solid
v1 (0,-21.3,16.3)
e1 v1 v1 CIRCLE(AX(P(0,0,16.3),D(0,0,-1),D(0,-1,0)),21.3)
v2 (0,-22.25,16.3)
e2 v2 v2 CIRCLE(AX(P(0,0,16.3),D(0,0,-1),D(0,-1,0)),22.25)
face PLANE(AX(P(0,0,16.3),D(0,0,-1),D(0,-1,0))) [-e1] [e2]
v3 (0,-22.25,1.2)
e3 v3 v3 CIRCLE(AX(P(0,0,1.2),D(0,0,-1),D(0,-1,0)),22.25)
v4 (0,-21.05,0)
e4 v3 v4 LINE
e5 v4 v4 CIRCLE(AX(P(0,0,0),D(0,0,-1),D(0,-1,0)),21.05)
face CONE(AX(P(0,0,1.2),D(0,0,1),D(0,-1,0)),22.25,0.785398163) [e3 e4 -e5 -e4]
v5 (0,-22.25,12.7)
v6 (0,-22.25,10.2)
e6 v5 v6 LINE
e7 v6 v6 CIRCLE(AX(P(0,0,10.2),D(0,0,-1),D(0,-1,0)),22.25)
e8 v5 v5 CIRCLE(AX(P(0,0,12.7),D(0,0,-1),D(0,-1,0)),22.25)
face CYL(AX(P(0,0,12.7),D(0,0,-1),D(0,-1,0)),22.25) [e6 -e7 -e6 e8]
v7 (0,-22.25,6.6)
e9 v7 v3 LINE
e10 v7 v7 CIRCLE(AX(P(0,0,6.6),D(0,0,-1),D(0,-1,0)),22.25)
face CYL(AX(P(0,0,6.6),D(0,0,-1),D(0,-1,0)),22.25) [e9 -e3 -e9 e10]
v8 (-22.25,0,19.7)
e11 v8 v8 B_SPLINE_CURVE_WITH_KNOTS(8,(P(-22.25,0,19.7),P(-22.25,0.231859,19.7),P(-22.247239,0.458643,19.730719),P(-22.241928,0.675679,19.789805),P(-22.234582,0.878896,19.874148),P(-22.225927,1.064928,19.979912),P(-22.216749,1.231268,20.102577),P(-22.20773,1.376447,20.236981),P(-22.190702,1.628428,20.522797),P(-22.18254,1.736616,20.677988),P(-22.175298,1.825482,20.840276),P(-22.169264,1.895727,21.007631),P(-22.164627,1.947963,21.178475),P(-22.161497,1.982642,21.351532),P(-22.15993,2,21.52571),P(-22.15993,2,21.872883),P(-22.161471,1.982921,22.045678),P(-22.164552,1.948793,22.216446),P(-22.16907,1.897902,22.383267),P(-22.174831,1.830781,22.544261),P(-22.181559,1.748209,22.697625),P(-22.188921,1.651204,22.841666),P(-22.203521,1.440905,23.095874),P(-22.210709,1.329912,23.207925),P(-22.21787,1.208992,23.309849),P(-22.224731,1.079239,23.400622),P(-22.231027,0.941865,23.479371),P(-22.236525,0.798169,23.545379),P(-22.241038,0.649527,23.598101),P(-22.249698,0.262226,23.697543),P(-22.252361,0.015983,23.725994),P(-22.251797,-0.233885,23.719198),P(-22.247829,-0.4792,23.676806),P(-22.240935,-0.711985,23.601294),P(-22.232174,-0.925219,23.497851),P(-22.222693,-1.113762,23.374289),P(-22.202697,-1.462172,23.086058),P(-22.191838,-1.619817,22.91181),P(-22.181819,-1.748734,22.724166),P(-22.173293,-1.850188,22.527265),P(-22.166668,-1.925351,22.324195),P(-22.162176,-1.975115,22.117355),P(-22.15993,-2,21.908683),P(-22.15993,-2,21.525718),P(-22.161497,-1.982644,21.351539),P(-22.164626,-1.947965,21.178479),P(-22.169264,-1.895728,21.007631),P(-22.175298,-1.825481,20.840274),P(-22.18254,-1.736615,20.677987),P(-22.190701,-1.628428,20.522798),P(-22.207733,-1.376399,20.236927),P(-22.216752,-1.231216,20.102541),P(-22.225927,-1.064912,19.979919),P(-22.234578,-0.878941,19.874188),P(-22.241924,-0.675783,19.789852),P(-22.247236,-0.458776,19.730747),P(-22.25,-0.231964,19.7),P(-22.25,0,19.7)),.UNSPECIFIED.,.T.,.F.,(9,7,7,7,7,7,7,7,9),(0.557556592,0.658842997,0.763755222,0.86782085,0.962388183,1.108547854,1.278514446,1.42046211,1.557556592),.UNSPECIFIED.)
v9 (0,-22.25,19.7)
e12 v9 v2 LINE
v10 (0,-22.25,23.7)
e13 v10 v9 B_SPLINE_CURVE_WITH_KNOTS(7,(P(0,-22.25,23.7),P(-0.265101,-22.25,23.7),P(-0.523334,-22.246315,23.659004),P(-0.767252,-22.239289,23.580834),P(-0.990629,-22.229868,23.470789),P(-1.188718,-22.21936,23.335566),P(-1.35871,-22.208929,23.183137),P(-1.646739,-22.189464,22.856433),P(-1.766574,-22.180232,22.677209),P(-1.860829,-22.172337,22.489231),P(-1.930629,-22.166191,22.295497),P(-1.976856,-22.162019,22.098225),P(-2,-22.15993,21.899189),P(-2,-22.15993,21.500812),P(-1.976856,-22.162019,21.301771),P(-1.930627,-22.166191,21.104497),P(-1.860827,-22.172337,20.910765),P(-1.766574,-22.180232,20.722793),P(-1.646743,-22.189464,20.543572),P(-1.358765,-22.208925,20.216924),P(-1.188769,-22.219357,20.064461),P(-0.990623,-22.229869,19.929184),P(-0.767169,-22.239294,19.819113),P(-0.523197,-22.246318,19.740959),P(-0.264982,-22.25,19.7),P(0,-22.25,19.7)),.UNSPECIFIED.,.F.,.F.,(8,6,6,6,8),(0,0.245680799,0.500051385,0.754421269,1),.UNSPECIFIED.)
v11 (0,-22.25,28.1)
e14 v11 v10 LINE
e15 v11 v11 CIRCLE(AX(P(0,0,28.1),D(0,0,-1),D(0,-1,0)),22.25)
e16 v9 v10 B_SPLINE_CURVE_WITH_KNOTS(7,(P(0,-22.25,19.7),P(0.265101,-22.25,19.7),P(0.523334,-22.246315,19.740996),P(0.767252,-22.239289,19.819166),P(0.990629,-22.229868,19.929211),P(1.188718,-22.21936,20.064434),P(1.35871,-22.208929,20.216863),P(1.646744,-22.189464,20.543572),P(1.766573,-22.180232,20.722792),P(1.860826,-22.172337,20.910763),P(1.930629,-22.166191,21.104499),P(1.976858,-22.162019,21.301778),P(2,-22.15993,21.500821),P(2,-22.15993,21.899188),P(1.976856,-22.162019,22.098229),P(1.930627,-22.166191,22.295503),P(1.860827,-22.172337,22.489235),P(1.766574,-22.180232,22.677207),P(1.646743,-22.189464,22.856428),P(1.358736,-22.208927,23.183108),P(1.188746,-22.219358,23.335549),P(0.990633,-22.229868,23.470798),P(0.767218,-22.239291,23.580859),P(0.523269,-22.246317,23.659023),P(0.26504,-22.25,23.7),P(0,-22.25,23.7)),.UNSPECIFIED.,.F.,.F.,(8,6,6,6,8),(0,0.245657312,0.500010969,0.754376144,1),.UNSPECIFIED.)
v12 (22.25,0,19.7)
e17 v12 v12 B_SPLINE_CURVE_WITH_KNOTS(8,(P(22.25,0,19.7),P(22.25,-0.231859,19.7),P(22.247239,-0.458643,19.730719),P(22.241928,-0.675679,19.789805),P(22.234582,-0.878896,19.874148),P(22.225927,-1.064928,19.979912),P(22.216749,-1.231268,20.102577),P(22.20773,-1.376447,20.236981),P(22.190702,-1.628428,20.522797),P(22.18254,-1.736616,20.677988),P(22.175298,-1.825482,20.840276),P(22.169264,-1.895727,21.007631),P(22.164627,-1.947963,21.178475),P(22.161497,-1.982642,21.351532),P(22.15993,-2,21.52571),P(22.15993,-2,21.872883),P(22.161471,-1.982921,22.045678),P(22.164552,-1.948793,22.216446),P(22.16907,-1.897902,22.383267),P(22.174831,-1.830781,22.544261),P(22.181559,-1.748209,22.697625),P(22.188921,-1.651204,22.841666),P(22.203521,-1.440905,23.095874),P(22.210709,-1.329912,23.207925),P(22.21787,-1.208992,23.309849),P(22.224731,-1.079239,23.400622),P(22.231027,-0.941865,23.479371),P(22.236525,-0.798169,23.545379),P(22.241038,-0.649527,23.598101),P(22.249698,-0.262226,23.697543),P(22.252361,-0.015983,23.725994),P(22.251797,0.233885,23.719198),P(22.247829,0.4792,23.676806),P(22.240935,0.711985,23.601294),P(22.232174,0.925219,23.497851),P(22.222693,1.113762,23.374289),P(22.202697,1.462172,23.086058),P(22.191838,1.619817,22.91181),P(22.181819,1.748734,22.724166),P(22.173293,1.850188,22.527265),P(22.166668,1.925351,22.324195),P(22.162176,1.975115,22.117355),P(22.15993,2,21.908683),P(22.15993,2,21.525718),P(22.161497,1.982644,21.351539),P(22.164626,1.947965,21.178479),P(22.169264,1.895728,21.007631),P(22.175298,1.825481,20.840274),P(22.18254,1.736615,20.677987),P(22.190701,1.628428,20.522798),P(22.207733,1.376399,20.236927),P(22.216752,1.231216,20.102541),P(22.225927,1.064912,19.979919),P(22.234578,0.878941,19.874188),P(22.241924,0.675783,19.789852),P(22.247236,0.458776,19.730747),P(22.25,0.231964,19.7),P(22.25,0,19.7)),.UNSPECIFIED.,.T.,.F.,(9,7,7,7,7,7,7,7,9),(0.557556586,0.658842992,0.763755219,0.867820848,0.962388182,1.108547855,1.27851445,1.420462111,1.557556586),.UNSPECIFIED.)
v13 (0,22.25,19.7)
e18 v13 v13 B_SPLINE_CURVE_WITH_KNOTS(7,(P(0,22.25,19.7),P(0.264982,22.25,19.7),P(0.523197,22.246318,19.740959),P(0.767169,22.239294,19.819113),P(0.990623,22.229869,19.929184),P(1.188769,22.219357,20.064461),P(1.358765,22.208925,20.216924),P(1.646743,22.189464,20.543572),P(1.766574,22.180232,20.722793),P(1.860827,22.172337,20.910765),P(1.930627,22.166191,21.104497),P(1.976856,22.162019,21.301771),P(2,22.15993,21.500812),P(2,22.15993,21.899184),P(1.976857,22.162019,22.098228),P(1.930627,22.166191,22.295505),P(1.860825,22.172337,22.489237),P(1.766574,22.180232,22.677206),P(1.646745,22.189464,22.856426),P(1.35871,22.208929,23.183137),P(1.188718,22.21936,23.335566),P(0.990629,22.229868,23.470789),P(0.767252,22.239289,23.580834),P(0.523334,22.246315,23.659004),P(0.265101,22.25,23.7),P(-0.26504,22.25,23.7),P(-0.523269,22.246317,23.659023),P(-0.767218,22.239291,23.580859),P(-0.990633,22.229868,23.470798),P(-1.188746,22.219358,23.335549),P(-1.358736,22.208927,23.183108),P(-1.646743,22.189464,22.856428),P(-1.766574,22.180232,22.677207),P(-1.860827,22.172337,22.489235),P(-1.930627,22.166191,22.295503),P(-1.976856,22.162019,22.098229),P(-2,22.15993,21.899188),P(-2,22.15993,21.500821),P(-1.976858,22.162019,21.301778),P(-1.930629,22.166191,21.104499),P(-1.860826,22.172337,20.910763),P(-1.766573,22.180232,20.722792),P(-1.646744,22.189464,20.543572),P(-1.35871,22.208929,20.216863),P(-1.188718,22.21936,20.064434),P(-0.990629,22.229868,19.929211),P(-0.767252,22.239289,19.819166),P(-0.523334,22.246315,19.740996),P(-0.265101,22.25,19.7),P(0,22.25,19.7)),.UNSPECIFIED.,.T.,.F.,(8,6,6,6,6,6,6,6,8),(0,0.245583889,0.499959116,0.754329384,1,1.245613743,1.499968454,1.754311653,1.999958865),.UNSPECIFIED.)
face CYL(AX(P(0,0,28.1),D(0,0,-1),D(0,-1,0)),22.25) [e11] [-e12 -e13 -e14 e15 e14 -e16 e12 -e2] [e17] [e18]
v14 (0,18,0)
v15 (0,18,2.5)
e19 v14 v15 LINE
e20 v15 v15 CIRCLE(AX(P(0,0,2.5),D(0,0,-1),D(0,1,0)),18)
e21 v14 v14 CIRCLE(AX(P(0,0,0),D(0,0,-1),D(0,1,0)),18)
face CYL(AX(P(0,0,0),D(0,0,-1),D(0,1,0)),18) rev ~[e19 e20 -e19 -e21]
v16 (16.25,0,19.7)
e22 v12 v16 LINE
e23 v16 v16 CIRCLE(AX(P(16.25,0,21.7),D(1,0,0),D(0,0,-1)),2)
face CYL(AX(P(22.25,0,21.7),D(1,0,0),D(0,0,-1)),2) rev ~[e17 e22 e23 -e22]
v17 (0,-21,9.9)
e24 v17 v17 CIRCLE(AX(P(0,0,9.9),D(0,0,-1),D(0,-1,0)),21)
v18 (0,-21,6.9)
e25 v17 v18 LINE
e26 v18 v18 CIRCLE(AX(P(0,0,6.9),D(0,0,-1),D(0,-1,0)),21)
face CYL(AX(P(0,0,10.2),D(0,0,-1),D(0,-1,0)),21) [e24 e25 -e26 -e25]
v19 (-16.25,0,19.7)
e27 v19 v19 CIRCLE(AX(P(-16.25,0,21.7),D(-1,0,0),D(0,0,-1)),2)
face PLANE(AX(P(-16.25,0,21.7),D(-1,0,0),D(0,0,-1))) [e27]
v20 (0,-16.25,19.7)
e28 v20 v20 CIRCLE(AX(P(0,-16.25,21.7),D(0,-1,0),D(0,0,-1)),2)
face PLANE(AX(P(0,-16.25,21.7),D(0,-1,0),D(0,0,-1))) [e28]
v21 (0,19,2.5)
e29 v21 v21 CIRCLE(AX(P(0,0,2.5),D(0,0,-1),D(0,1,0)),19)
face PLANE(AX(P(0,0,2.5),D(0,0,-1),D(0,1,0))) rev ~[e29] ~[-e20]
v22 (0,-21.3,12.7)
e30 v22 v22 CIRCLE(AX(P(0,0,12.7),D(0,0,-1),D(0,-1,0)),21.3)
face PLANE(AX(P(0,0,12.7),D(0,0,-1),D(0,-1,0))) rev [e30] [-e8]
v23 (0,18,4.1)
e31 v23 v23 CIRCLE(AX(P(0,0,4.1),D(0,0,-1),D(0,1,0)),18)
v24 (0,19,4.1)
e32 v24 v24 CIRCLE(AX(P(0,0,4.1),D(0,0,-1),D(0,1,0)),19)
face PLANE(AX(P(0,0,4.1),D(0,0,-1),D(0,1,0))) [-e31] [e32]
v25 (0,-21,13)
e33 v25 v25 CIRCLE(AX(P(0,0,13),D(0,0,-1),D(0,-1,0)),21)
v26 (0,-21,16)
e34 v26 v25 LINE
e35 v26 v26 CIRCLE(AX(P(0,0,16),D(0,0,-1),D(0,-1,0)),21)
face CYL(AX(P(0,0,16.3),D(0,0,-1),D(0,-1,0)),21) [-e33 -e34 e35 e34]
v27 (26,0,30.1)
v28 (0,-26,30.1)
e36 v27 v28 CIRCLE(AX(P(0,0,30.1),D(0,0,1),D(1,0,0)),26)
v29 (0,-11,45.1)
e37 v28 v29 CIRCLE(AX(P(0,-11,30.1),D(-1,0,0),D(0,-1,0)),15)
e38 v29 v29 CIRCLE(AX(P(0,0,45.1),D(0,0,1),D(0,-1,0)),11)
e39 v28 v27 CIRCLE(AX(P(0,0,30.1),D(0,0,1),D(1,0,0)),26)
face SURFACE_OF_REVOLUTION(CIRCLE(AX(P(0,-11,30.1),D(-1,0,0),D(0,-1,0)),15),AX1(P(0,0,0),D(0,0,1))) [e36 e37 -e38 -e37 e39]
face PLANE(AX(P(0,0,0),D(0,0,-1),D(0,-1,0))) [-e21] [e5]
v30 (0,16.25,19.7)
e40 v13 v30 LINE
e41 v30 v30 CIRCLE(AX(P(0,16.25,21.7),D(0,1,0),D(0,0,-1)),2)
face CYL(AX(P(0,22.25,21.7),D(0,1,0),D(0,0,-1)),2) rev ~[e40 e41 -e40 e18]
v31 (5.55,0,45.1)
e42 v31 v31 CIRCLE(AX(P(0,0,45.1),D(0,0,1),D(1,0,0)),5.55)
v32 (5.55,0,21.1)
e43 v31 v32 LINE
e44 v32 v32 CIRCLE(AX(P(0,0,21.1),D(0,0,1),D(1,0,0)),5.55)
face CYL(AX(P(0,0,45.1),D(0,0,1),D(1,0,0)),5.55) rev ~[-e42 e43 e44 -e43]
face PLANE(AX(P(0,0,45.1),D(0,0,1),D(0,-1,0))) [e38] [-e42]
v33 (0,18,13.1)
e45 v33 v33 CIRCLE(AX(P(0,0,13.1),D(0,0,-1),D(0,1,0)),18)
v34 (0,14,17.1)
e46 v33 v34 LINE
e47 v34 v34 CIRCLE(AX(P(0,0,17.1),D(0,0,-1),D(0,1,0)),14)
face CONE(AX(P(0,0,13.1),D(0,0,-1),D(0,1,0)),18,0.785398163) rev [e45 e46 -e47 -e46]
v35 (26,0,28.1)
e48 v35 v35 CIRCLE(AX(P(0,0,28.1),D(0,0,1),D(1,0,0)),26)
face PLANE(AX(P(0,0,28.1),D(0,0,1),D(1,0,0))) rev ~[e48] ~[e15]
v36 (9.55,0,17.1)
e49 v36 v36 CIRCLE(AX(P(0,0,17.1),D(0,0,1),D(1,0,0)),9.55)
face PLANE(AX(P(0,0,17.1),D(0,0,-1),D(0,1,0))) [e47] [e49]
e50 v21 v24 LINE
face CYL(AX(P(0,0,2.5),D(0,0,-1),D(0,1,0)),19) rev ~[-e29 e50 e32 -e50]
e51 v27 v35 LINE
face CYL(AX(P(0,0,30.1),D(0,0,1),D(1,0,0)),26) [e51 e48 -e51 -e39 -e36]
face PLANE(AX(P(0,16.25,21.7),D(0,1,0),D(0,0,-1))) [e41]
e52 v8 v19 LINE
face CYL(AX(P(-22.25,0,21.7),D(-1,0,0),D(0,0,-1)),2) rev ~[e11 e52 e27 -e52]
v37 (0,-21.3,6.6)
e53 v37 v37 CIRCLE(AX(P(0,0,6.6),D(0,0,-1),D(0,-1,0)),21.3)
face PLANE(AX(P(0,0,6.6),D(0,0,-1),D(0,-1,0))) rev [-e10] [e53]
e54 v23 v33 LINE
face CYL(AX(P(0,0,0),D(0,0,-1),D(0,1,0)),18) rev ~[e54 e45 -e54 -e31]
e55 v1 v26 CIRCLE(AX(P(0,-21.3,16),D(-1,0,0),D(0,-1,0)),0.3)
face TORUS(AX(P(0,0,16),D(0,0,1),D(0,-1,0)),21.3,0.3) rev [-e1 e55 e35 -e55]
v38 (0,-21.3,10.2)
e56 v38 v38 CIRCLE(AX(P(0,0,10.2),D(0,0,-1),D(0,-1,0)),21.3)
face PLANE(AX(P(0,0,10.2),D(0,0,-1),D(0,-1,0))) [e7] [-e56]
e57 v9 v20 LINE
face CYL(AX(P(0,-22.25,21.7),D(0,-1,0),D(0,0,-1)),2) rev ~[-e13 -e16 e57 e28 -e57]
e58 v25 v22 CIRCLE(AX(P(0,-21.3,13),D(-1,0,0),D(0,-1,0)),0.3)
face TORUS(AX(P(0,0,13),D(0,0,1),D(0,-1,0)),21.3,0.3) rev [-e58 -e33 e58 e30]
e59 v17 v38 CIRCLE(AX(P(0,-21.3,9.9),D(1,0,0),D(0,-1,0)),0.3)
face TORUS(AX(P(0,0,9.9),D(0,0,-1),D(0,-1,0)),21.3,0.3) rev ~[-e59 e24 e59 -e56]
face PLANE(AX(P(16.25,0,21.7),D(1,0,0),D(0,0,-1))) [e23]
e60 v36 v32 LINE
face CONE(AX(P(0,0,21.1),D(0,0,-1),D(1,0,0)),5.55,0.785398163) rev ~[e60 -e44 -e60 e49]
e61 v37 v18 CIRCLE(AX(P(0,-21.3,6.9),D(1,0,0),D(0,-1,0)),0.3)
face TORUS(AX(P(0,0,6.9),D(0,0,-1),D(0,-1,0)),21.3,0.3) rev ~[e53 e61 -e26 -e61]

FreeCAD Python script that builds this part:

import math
import FreeCAD as App
import Part
import Sketcher
Q = App.Units.Quantity


def edges_at(feature, points):
    """Names of the edges that pass closest to the given points."""
    edges = feature.Shape.Edges
    near = lambda p: min(range(len(edges)), key=lambda i: edges[i].distToShape(Part.Vertex(*p))[0])
    return sorted({f"Edge{near(p) + 1}" for p in points})


def add_polygon(sketch, points):
    """Adds a closed chain of lines whose ends are joined by coincident constraints."""
    first, n = sketch.GeometryCount, len(points)
    for a, b in zip(points, points[1:] + points[:1]):
        sketch.addGeometry(Part.LineSegment(App.Vector(*a, 0), App.Vector(*b, 0)), False)
    for i in range(n):
        sketch.addConstraint(Sketcher.Constraint("Coincident", first + i, 2, first + (i + 1) % n, 1))

doc = App.newDocument("Part")
body = doc.addObject("PartDesign::Body", "Body")

# Sketch on YZ plane
sketch1 = body.newObject("Sketcher::SketchObject", "Sketch")
sketch1.AttachmentSupport = (doc.getObject("YZ_Plane"), [""])
sketch1.MapMode = "FlatFace"
add_polygon(sketch1, [(22.25, 28.1), (12.25, 28.1), (12.25, 0), (21.05, 0), (22.25, 1.2), (22.25, 6.6), (21, 6.6), (21, 10.2), (22.25, 10.2), (22.25, 12.7), (21, 12.7), (21, 16.3), (22.25, 16.3)])  # lines 0-12
sketch1.addConstraint([
    Sketcher.Constraint("Horizontal", 0),
    Sketcher.Constraint("Vertical", 1),
    Sketcher.Constraint("Horizontal", 2),
    Sketcher.Constraint("Vertical", 4),
    Sketcher.Constraint("Horizontal", 5),
    Sketcher.Constraint("Vertical", 6),
    Sketcher.Constraint("Horizontal", 7),
    Sketcher.Constraint("Vertical", 8),
    Sketcher.Constraint("Horizontal", 9),
    Sketcher.Constraint("Vertical", 10),
    Sketcher.Constraint("Horizontal", 11),
    Sketcher.Constraint("Vertical", 12),
    Sketcher.Constraint("PointOnObject", 1, 2, -1),
    Sketcher.Constraint("Vertical", 4, 2, 7, 2),
    Sketcher.Constraint("Vertical", 6, 2, 9, 2),
    Sketcher.Constraint("Vertical", 8, 2, 11, 2),
    Sketcher.Constraint("Equal", 6, 10),
    Sketcher.Constraint("DistanceX", 0, 2, 0, 1, 10.0),
    Sketcher.Constraint("Angle", 3, Q("45 deg")),
    Sketcher.Constraint("DistanceX", 2, 1, 2, 2, 8.8),
    Sketcher.Constraint("DistanceY", 1, 2, 1, 1, 28.1),
    Sketcher.Constraint("DistanceY", 4, 1, 4, 2, 5.4),
    Sketcher.Constraint("DistanceY", 6, 1, 6, 2, 3.6),
    Sketcher.Constraint("DistanceY", 8, 1, 8, 2, 2.5),
    Sketcher.Constraint("DistanceX", -1, 1, 5, 2, 21.0),
    Sketcher.Constraint("DistanceX", 5, 2, 5, 1, 1.25),
])
revolution = body.newObject("PartDesign::Revolution", "Revolution")
revolution.Profile = sketch1
revolution.ReferenceAxis = (sketch1, ["V_Axis"])
revolution.Angle = 360

# Sketch on XY plane
sketch2 = body.newObject("Sketcher::SketchObject", "Sketch001")
sketch2.AttachmentSupport = (doc.getObject("XY_Plane"), [""])
sketch2.MapMode = "FlatFace"
sketch2.AttachmentOffset = App.Placement(App.Vector(0, 0, 30.1), App.Rotation())
sketch2.addGeometry([
    Part.Circle(App.Vector(0, 0, 0), App.Vector(0, 0, 1), 26),
    Part.Circle(App.Vector(0, 0, 0), App.Vector(0, 0, 1), 12.25),
], False)
sketch2.addConstraint([
    Sketcher.Constraint("Coincident", 0, 3, -1, 1),
    Sketcher.Constraint("Coincident", 1, 3, -1, 1),
    Sketcher.Constraint("Diameter", 0, 52.0),
    Sketcher.Constraint("Diameter", 1, 24.5),
])
pad1 = body.newObject("PartDesign::Pad", "Pad")
pad1.Profile = sketch2
pad1.Length = 2
pad1.Reversed = True

# Sketch on XZ plane
sketch3 = body.newObject("Sketcher::SketchObject", "Sketch002")
sketch3.AttachmentSupport = (doc.getObject("XZ_Plane"), [""])
sketch3.MapMode = "FlatFace"
sketch3.addGeometry([
    Part.LineSegment(App.Vector(0, 45.1, 0), App.Vector(0, 30.1, 0)),
    Part.LineSegment(App.Vector(0, 30.1, 0), App.Vector(-26, 30.1, 0)),
    Part.ArcOfCircle(Part.Circle(App.Vector(-11, 30.1, 0), App.Vector(0, 0, 1), 15), math.radians(90), math.radians(180)),
    Part.LineSegment(App.Vector(-11, 45.1, 0), App.Vector(0, 45.1, 0)),
], False)
sketch3.addConstraint([
    Sketcher.Constraint("Coincident", 0, 2, 1, 1),
    Sketcher.Constraint("Coincident", 1, 2, 2, 2),
    Sketcher.Constraint("Tangent", 2, 1, 3, 1),
    Sketcher.Constraint("Coincident", 3, 2, 0, 1),
    Sketcher.Constraint("Vertical", 0),
    Sketcher.Constraint("Horizontal", 1),
    Sketcher.Constraint("Horizontal", 3),
    Sketcher.Constraint("PointOnObject", 0, 2, -2),
    Sketcher.Constraint("Horizontal", 2, 3, 0, 2),
    Sketcher.Constraint("Radius", 2, 15.0),
    Sketcher.Constraint("DistanceX", 1, 2, 1, 1, 26.0),
    Sketcher.Constraint("DistanceY", -1, 1, 2, 3, 30.1),
])
revolution2 = body.newObject("PartDesign::Revolution", "Revolution001")
revolution2.Profile = sketch3
revolution2.ReferenceAxis = (sketch3, ["V_Axis"])
revolution2.Angle = 360

# Sketch on XY plane
sketch4 = body.newObject("Sketcher::SketchObject", "Sketch003")
sketch4.AttachmentSupport = (doc.getObject("XY_Plane"), [""])
sketch4.MapMode = "FlatFace"
sketch4.AttachmentOffset = App.Placement(App.Vector(0, 0, 30.1), App.Rotation())
sketch4.addGeometry(Part.Circle(App.Vector(0, 0, 0), App.Vector(0, 0, 1), 12.25), False)
sketch4.addConstraint([
    Sketcher.Constraint("Coincident", 0, 3, -1, 1),
    Sketcher.Constraint("Diameter", 0, 24.5),
])
pad2 = body.newObject("PartDesign::Pad", "Pad001")
pad2.Profile = sketch4
pad2.Length = 13
pad2.Reversed = True

# Sketch on XY plane
sketch5 = body.newObject("Sketcher::SketchObject", "Sketch004")
sketch5.AttachmentSupport = (doc.getObject("XY_Plane"), [""])
sketch5.MapMode = "FlatFace"
sketch5.AttachmentOffset = App.Placement(App.Vector(0, 0, 45.1), App.Rotation())
sketch5.addGeometry(Part.Circle(App.Vector(0, 0, 0), App.Vector(0, 0, 1), 5.55), False)
sketch5.addConstraint([
    Sketcher.Constraint("Coincident", 0, 3, -1, 1),
    Sketcher.Constraint("Diameter", 0, 11.1),
])
pocket1 = body.newObject("PartDesign::Pocket", "Pocket")
pocket1.Profile = sketch5
pocket1.Length = 28

# Sketch on YZ plane
sketch6 = body.newObject("Sketcher::SketchObject", "Sketch005")
sketch6.AttachmentSupport = (doc.getObject("YZ_Plane"), [""])
sketch6.MapMode = "FlatFace"
sketch6.AttachmentOffset = App.Placement(App.Vector(0, 0, 22.25), App.Rotation())
sketch6.addGeometry(Part.Circle(App.Vector(0, 21.7, 0), App.Vector(0, 0, 1), 2), False)
sketch6.addConstraint([
    Sketcher.Constraint("PointOnObject", 0, 3, -2),
    Sketcher.Constraint("Diameter", 0, 4.0),
    Sketcher.Constraint("DistanceY", -1, 1, 0, 3, 21.7),
])
pocket2 = body.newObject("PartDesign::Pocket", "Pocket001")
pocket2.Profile = sketch6
pocket2.Length = 6

# Sketch on XY plane
sketch7 = body.newObject("Sketcher::SketchObject", "Sketch006")
sketch7.AttachmentSupport = (doc.getObject("XY_Plane"), [""])
sketch7.MapMode = "FlatFace"
sketch7.addGeometry(Part.Circle(App.Vector(0, 0, 0), App.Vector(0, 0, 1), 16.5), False)
sketch7.addConstraint([
    Sketcher.Constraint("Coincident", 0, 3, -1, 1),
    Sketcher.Constraint("Diameter", 0, 33.0),
])
pocket3 = body.newObject("PartDesign::Pocket", "Pocket002")
pocket3.Profile = sketch7
pocket3.Length = 17.1
pocket3.Reversed = True
doc.recompute()

chamfer = body.newObject("PartDesign::Chamfer", "Chamfer")
chamfer.Base = (pocket3, edges_at(pocket3, [(-5.55, 0, 17.1), (0, -16.5, 17.1)]))
chamfer.Size = 4
doc.recompute()

fillet = body.newObject("PartDesign::Fillet", "Fillet")
fillet.Base = (chamfer, edges_at(chamfer, [
    (0, 21, 6.6),
    (0, 21, 10.2),
    (0, 21, 12.7),
    (0, 21, 16.3),
]))
fillet.Radius = 0.3
doc.recompute()

polarpattern = body.newObject("PartDesign::PolarPattern", "PolarPattern")
polarpattern.Originals = [pocket2]
polarpattern.Axis = (doc.getObject("Z_Axis"), [""])
polarpattern.Angle = 360
polarpattern.Occurrences = 4
body.Tip = polarpattern

# Sketch on XY plane
sketch8 = body.newObject("Sketcher::SketchObject", "Sketch007")
sketch8.AttachmentSupport = (doc.getObject("XY_Plane"), [""])
sketch8.MapMode = "FlatFace"
sketch8.addGeometry(Part.Circle(App.Vector(0, 0, 0), App.Vector(0, 0, 1), 18), False)
sketch8.addConstraint([
    Sketcher.Constraint("Coincident", 0, 3, -1, 1),
    Sketcher.Constraint("Diameter", 0, 36.0),
])
pocket4 = body.newObject("PartDesign::Pocket", "Pocket003")
pocket4.Profile = sketch8
pocket4.Length = 17.1
pocket4.Reversed = True
doc.recompute()

chamfer2 = body.newObject("PartDesign::Chamfer", "Chamfer001")
chamfer2.Base = (pocket4, edges_at(pocket4, [(0, -18, 17.1)]))
chamfer2.Size = 4

# Sketch on XY plane
sketch9 = body.newObject("Sketcher::SketchObject", "Sketch008")
sketch9.AttachmentSupport = (doc.getObject("XY_Plane"), [""])
sketch9.MapMode = "FlatFace"
sketch9.AttachmentOffset = App.Placement(App.Vector(0, 0, 2.5), App.Rotation())
sketch9.addGeometry(Part.Circle(App.Vector(0, 0, 0), App.Vector(0, 0, 1), 19), False)
sketch9.addConstraint([
    Sketcher.Constraint("Coincident", 0, 3, -1, 1),
    Sketcher.Constraint("Diameter", 0, 38.0),
])
pocket5 = body.newObject("PartDesign::Pocket", "Pocket004")
pocket5.Profile = sketch9
pocket5.Length = 1.6
pocket5.Reversed = True

doc.recompute()
